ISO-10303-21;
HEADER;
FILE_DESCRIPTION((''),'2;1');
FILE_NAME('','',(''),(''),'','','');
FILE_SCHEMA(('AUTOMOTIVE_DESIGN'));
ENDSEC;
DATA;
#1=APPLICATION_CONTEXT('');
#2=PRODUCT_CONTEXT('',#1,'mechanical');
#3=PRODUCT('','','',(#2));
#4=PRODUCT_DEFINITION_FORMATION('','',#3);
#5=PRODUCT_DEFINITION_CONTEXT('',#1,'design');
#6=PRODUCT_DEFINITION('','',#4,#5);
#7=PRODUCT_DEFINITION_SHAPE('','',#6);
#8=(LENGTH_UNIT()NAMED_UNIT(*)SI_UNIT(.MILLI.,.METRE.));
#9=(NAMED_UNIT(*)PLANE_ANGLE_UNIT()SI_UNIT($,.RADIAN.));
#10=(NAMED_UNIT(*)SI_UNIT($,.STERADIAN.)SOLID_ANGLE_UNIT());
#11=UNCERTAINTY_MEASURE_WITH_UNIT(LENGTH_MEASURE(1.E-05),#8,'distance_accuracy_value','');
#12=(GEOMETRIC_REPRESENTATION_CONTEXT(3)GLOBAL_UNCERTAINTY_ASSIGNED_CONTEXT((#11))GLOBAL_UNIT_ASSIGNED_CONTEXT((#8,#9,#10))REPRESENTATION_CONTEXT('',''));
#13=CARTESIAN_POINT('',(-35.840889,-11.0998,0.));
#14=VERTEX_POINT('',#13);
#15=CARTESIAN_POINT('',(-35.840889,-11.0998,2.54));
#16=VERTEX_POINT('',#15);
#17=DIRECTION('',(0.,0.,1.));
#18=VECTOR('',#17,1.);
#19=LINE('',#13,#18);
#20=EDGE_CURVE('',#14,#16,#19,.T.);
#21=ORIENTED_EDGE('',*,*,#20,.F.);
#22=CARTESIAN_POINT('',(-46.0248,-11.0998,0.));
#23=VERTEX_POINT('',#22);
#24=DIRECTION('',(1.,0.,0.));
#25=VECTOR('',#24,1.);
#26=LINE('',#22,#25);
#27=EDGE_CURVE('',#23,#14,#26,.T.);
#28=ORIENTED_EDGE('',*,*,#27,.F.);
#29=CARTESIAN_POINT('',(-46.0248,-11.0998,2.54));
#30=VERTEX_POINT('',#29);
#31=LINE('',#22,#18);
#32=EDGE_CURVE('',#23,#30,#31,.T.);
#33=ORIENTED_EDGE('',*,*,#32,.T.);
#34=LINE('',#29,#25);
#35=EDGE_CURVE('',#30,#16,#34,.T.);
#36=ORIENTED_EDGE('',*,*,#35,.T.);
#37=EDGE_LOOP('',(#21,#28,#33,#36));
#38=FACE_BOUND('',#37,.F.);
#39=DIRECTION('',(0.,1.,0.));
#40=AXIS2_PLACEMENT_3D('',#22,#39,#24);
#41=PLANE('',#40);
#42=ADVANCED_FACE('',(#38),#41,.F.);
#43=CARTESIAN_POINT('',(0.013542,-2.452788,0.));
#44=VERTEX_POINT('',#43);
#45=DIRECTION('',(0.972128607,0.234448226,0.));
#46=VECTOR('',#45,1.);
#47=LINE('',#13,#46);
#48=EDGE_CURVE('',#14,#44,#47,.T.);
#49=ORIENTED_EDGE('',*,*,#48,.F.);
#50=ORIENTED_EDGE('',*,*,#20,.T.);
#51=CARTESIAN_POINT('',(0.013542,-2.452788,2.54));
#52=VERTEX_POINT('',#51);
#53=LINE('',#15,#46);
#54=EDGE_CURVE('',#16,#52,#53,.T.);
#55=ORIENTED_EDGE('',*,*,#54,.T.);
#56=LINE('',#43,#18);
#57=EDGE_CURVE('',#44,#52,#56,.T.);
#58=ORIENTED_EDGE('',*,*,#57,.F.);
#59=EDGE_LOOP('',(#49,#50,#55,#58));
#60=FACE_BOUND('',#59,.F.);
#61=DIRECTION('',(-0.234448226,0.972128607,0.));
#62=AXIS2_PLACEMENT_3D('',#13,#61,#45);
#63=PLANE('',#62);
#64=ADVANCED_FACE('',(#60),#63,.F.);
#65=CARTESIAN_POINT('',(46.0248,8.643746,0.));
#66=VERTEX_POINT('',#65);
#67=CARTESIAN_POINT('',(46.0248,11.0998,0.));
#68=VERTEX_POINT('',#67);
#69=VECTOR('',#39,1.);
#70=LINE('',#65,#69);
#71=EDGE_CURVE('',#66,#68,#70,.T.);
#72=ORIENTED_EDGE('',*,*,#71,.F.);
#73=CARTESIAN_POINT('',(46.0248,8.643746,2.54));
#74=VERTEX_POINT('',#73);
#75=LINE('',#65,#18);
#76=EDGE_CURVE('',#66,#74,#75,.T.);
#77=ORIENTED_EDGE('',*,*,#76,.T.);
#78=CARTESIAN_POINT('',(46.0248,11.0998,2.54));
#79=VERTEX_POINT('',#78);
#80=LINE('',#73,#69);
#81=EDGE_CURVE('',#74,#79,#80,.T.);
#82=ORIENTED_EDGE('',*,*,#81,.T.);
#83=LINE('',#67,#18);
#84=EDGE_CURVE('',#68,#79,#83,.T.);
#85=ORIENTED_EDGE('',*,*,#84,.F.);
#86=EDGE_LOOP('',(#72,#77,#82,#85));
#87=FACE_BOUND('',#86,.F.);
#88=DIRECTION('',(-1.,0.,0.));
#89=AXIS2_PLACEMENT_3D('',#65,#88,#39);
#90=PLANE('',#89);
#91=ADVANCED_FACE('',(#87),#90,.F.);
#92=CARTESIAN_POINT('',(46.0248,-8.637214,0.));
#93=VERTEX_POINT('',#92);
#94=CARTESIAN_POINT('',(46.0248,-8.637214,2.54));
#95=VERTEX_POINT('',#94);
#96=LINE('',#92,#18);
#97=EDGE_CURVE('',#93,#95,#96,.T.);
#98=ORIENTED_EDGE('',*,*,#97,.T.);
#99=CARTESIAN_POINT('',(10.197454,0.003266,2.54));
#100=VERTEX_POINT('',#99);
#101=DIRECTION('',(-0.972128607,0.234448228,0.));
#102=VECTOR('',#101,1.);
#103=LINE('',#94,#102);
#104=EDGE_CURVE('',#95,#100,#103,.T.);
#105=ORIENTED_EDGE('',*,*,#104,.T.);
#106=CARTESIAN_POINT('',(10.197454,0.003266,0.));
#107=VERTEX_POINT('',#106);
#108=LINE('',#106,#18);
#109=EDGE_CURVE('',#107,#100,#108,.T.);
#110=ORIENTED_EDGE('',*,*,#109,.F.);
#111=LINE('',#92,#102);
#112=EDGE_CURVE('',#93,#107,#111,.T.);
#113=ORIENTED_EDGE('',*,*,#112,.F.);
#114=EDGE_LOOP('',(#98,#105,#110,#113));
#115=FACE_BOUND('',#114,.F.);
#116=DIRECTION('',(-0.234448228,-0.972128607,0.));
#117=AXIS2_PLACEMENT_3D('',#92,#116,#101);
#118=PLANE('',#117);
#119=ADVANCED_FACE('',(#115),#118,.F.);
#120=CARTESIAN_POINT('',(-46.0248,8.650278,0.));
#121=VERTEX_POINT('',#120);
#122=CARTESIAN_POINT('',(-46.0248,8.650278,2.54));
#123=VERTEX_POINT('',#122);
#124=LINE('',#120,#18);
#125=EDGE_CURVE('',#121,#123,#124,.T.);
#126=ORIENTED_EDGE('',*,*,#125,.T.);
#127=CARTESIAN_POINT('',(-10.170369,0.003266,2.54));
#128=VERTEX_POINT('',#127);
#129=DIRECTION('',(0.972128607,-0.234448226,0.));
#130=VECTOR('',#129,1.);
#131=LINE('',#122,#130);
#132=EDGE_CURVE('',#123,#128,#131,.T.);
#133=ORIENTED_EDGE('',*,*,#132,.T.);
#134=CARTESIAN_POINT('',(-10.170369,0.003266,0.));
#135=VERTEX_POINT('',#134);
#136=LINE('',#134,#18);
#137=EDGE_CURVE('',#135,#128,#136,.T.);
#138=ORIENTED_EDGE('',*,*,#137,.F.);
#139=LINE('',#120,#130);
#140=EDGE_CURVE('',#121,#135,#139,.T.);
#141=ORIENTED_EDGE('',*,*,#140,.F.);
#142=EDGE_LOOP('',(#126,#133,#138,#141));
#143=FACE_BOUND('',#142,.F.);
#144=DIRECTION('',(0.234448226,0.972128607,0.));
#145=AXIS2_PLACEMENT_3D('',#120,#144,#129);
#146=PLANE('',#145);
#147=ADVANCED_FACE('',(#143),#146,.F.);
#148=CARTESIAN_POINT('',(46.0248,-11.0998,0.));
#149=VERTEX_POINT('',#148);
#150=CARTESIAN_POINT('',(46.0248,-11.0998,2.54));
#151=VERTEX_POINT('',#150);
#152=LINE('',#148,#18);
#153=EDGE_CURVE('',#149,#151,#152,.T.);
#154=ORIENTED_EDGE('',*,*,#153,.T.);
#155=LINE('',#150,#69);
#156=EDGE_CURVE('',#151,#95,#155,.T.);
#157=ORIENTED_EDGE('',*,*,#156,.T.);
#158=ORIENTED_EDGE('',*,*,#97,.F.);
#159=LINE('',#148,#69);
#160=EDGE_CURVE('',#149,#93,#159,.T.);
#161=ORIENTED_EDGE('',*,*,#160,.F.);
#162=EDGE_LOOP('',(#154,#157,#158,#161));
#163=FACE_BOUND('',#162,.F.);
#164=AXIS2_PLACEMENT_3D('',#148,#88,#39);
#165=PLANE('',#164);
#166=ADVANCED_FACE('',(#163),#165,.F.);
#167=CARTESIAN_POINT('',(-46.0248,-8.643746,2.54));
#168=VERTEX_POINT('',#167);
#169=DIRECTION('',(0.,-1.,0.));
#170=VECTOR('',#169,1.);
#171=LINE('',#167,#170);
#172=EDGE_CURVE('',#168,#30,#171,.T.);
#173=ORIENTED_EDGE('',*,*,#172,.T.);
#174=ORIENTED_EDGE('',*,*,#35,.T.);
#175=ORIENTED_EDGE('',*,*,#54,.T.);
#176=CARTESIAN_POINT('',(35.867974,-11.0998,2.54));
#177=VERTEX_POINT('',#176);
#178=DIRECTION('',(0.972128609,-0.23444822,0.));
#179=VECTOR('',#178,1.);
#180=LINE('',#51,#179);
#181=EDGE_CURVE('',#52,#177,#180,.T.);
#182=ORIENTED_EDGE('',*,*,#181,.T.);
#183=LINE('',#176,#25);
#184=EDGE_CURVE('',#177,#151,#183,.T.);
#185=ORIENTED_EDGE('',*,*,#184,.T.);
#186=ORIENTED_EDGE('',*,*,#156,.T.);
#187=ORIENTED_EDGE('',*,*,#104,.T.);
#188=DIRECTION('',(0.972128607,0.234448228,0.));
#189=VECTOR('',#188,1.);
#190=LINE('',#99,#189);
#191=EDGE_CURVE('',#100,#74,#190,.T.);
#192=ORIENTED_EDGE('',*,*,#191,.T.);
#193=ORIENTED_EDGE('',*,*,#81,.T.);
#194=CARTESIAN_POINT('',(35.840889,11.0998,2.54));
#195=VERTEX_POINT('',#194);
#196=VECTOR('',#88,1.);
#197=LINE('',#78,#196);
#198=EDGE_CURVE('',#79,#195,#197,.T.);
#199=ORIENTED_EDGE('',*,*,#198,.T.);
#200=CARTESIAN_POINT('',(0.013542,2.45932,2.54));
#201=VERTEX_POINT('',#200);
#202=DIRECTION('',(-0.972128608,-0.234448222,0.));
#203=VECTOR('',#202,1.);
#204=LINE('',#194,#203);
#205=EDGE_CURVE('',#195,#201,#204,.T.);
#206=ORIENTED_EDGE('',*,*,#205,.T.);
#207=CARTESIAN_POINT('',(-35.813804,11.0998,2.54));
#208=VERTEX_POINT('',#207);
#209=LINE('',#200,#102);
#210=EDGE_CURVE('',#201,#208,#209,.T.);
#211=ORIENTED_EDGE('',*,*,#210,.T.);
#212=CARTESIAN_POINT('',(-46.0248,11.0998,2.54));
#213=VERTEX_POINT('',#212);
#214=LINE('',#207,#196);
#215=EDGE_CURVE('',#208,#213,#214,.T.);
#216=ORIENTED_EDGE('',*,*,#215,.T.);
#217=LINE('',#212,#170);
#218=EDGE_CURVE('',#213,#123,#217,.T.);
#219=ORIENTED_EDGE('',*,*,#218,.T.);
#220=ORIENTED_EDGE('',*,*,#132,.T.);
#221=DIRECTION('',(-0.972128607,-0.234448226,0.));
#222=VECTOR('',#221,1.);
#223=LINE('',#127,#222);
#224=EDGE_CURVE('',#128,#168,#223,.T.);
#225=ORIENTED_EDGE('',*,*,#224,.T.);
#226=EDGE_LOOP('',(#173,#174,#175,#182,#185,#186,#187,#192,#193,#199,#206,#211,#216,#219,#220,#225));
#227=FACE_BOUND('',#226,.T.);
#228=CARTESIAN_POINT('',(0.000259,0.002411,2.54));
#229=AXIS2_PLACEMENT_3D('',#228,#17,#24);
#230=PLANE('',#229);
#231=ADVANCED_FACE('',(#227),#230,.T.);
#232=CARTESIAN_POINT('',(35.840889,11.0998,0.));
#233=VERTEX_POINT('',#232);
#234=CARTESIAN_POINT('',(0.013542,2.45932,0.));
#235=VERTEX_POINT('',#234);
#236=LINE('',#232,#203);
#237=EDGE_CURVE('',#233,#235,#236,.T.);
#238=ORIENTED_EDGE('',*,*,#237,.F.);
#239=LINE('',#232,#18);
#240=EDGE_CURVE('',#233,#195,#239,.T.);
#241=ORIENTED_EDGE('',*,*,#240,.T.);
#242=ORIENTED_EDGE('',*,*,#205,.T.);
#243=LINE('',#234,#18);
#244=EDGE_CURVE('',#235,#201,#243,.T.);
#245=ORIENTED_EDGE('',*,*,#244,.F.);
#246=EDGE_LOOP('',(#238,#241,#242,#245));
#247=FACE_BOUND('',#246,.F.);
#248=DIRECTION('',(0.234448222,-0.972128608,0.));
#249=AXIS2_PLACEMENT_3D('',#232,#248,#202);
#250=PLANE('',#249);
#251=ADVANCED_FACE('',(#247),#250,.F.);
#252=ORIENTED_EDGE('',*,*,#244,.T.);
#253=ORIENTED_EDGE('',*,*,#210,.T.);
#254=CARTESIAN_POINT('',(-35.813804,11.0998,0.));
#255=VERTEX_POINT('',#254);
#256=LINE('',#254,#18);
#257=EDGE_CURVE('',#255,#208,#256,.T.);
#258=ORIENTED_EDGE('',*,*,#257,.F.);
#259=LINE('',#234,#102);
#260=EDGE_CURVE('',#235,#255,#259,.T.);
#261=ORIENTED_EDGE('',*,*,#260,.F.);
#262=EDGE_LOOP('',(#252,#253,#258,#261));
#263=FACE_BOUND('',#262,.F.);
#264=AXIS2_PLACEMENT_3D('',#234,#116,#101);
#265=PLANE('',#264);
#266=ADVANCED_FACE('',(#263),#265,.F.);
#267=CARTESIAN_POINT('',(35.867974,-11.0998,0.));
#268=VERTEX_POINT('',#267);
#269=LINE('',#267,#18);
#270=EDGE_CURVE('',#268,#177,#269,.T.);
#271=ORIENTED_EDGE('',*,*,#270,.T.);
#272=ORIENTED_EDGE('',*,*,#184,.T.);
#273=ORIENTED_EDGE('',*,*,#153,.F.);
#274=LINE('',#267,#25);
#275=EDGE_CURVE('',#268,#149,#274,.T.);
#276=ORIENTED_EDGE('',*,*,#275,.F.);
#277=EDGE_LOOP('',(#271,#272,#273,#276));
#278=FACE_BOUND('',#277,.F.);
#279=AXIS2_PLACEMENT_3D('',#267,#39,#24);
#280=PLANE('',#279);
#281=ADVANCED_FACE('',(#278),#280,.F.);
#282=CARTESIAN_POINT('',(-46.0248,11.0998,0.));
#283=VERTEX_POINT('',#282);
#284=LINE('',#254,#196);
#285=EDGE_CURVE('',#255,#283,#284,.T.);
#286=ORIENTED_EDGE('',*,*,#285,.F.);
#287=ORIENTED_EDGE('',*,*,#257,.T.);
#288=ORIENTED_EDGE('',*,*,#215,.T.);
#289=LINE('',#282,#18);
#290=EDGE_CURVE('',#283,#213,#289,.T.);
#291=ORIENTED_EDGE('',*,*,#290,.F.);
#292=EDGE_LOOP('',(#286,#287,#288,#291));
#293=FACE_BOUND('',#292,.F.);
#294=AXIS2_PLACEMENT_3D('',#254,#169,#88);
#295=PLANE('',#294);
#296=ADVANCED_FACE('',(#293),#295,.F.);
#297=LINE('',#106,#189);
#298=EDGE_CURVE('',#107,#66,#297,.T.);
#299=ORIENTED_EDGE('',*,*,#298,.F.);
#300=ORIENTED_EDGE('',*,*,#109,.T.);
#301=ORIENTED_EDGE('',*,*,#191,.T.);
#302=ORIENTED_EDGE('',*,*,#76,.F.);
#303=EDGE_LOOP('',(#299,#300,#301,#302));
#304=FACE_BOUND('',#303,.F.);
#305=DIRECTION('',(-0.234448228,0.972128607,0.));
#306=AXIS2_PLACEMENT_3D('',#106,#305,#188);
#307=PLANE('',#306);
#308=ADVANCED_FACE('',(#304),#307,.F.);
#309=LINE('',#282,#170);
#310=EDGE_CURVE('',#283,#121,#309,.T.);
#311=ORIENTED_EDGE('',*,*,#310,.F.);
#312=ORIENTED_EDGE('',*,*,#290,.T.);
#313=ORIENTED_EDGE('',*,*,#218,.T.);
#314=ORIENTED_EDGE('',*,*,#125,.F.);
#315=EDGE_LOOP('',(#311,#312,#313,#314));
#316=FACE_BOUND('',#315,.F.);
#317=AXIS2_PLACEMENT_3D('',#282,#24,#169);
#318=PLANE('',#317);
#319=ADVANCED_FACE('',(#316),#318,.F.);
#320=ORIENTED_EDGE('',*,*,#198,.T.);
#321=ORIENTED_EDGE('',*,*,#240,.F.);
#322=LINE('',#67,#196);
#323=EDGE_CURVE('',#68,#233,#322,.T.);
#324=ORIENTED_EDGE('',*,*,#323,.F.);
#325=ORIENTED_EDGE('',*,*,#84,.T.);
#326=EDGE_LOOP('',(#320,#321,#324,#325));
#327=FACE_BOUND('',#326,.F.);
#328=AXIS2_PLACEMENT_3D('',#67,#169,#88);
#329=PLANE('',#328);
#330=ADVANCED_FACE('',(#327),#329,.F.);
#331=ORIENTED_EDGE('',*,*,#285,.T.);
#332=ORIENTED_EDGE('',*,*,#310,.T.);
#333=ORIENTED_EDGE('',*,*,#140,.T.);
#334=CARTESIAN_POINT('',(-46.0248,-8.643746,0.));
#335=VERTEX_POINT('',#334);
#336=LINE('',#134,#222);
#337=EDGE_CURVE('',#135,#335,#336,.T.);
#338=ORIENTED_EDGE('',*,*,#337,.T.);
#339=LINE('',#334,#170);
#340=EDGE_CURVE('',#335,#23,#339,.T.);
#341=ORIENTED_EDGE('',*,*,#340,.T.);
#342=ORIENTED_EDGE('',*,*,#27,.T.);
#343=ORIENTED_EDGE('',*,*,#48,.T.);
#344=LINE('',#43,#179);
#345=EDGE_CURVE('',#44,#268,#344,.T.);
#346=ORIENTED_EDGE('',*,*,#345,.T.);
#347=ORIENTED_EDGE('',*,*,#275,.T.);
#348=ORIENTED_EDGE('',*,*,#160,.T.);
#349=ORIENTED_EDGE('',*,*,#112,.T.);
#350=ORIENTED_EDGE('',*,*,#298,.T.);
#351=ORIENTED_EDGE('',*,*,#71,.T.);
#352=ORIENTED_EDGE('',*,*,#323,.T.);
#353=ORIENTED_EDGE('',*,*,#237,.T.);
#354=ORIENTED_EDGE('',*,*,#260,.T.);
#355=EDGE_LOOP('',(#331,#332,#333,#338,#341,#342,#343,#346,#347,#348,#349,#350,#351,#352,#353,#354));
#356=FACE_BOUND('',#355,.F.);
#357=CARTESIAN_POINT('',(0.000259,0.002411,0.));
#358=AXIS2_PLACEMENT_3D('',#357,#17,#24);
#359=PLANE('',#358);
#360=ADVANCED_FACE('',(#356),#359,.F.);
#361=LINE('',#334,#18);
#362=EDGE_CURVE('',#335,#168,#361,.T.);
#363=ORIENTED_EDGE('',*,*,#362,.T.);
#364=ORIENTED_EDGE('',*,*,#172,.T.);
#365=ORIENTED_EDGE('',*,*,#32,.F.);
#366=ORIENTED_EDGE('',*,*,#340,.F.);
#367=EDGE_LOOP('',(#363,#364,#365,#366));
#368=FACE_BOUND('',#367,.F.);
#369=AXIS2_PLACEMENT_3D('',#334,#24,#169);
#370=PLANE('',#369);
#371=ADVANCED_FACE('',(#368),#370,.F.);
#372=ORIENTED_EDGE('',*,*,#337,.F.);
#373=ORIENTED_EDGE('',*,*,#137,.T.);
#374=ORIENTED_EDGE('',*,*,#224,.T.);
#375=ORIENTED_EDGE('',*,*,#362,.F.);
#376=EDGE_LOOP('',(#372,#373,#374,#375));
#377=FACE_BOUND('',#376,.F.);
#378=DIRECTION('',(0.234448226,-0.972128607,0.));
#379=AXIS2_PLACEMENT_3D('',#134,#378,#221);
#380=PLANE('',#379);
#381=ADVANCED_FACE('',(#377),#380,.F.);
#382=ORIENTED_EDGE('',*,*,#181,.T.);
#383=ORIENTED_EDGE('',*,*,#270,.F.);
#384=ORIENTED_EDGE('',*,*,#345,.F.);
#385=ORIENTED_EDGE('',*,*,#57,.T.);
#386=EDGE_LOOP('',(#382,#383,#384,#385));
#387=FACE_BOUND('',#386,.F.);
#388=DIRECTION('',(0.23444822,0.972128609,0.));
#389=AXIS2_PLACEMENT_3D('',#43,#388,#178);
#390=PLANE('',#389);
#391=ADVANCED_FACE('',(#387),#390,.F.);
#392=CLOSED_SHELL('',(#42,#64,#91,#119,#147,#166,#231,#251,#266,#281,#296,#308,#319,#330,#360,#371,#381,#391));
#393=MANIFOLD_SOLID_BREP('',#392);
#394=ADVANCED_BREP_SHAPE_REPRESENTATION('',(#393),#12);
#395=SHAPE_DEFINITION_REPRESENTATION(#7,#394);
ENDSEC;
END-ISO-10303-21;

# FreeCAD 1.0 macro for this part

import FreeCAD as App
import Part
import Sketcher
Q = App.Units.Quantity

doc = App.newDocument("Part")
body = doc.addObject("PartDesign::Body", "Body")

# Sketch on XY plane
sketch1 = doc.addObject("Sketcher::SketchObject", "Sketch")
body.addObject(sketch1)
sketch1.AttachmentSupport = (doc.XY_Plane, [""])
sketch1.MapMode = "FlatFace"
sketch1.addGeometry([
    Part.LineSegment(App.Vector(-46, 11.1, 0), App.Vector(-46, 8.7, 0)),  # 0
    Part.LineSegment(App.Vector(-46, 8.7, 0), App.Vector(-10.2, 0, 0)),  # 1
    Part.LineSegment(App.Vector(-10.2, 0, 0), App.Vector(-46, -8.6, 0)),  # 2
    Part.LineSegment(App.Vector(-46, -8.6, 0), App.Vector(-46, -11.1, 0)),  # 3
    Part.LineSegment(App.Vector(-46, -11.1, 0), App.Vector(-35.8, -11.1, 0)),  # 4
    Part.LineSegment(App.Vector(-35.8, -11.1, 0), App.Vector(0, -2.5, 0)),  # 5
    Part.LineSegment(App.Vector(0, -2.5, 0), App.Vector(35.9, -11.1, 0)),  # 6
    Part.LineSegment(App.Vector(35.9, -11.1, 0), App.Vector(46, -11.1, 0)),  # 7
    Part.LineSegment(App.Vector(46, -11.1, 0), App.Vector(46, -8.6, 0)),  # 8
    Part.LineSegment(App.Vector(46, -8.6, 0), App.Vector(10.2, 0, 0)),  # 9
    Part.LineSegment(App.Vector(10.2, 0, 0), App.Vector(46, 8.6, 0)),  # 10
    Part.LineSegment(App.Vector(46, 8.6, 0), App.Vector(46, 11.1, 0)),  # 11
    Part.LineSegment(App.Vector(46, 11.1, 0), App.Vector(35.8, 11.1, 0)),  # 12
    Part.LineSegment(App.Vector(35.8, 11.1, 0), App.Vector(0, 2.5, 0)),  # 13
    Part.LineSegment(App.Vector(0, 2.5, 0), App.Vector(-35.8, 11.1, 0)),  # 14
    Part.LineSegment(App.Vector(-35.8, 11.1, 0), App.Vector(-46, 11.1, 0)),  # 15
], False)
sketch1.addConstraint([
    Sketcher.Constraint("Coincident", 0, 2, 1, 1),
    Sketcher.Constraint("Coincident", 1, 2, 2, 1),
    Sketcher.Constraint("Coincident", 2, 2, 3, 1),
    Sketcher.Constraint("Coincident", 3, 2, 4, 1),
    Sketcher.Constraint("Coincident", 4, 2, 5, 1),
    Sketcher.Constraint("Coincident", 5, 2, 6, 1),
    Sketcher.Constraint("Coincident", 6, 2, 7, 1),
    Sketcher.Constraint("Coincident", 7, 2, 8, 1),
    Sketcher.Constraint("Coincident", 8, 2, 9, 1),
    Sketcher.Constraint("Coincident", 9, 2, 10, 1),
    Sketcher.Constraint("Coincident", 10, 2, 11, 1),
    Sketcher.Constraint("Coincident", 11, 2, 12, 1),
    Sketcher.Constraint("Coincident", 12, 2, 13, 1),
    Sketcher.Constraint("Coincident", 13, 2, 14, 1),
    Sketcher.Constraint("Coincident", 14, 2, 15, 1),
    Sketcher.Constraint("Coincident", 15, 2, 0, 1),
    Sketcher.Constraint("Vertical", 0),
    Sketcher.Constraint("Vertical", 3),
    Sketcher.Constraint("Horizontal", 4),
    Sketcher.Constraint("Horizontal", 7),
    Sketcher.Constraint("Vertical", 8),
    Sketcher.Constraint("Vertical", 11),
    Sketcher.Constraint("Horizontal", 12),
    Sketcher.Constraint("Horizontal", 15),
    Sketcher.Constraint("Symmetric", 2, 2, 10, 2, -1, 1),
    Sketcher.Constraint("Symmetric", 4, 2, 12, 2, -1, 1),
    Sketcher.Constraint("Symmetric", 7, 2, 15, 2, -1, 1),
    Sketcher.Constraint("Symmetric", 3, 2, 7, 2, -2),
    Sketcher.Constraint("Parallel", 2, 5),
    Sketcher.Constraint("Parallel", 1, 6),
    Sketcher.Constraint("Parallel", 6, 9),
    Sketcher.Constraint("Parallel", 5, 10),
    Sketcher.Constraint("Parallel", 10, 13),
    Sketcher.Constraint("Parallel", 9, 14),
    Sketcher.Constraint("Horizontal", 1, 2, 9, 2),
    Sketcher.Constraint("Vertical", 5, 2, 13, 2),
    Sketcher.Constraint("Equal", 1, 2),
    Sketcher.Constraint("Equal", 2, 5),
    Sketcher.Constraint("Equal", 10, 13),
    Sketcher.Constraint("DistanceX", 0, 2, -1, 1, Q("1.812 in")),
    Sketcher.Constraint("DistanceY", 3, 2, -1, 1, Q("0.437 in")),
    Sketcher.Constraint("DistanceX", 4, 1, 4, 2, Q("10.183911 mm")),
    Sketcher.Constraint("DistanceY", 0, 2, 0, 1, Q("2.449522 mm")),
    Sketcher.Constraint("DistanceX", 7, 1, 7, 2, Q("10.156826 mm")),
])
pad1 = doc.addObject("PartDesign::Pad", "Pad")
body.addObject(pad1)
pad1.Profile = sketch1
pad1.Length = Q("0.1 in")

doc.recompute()
